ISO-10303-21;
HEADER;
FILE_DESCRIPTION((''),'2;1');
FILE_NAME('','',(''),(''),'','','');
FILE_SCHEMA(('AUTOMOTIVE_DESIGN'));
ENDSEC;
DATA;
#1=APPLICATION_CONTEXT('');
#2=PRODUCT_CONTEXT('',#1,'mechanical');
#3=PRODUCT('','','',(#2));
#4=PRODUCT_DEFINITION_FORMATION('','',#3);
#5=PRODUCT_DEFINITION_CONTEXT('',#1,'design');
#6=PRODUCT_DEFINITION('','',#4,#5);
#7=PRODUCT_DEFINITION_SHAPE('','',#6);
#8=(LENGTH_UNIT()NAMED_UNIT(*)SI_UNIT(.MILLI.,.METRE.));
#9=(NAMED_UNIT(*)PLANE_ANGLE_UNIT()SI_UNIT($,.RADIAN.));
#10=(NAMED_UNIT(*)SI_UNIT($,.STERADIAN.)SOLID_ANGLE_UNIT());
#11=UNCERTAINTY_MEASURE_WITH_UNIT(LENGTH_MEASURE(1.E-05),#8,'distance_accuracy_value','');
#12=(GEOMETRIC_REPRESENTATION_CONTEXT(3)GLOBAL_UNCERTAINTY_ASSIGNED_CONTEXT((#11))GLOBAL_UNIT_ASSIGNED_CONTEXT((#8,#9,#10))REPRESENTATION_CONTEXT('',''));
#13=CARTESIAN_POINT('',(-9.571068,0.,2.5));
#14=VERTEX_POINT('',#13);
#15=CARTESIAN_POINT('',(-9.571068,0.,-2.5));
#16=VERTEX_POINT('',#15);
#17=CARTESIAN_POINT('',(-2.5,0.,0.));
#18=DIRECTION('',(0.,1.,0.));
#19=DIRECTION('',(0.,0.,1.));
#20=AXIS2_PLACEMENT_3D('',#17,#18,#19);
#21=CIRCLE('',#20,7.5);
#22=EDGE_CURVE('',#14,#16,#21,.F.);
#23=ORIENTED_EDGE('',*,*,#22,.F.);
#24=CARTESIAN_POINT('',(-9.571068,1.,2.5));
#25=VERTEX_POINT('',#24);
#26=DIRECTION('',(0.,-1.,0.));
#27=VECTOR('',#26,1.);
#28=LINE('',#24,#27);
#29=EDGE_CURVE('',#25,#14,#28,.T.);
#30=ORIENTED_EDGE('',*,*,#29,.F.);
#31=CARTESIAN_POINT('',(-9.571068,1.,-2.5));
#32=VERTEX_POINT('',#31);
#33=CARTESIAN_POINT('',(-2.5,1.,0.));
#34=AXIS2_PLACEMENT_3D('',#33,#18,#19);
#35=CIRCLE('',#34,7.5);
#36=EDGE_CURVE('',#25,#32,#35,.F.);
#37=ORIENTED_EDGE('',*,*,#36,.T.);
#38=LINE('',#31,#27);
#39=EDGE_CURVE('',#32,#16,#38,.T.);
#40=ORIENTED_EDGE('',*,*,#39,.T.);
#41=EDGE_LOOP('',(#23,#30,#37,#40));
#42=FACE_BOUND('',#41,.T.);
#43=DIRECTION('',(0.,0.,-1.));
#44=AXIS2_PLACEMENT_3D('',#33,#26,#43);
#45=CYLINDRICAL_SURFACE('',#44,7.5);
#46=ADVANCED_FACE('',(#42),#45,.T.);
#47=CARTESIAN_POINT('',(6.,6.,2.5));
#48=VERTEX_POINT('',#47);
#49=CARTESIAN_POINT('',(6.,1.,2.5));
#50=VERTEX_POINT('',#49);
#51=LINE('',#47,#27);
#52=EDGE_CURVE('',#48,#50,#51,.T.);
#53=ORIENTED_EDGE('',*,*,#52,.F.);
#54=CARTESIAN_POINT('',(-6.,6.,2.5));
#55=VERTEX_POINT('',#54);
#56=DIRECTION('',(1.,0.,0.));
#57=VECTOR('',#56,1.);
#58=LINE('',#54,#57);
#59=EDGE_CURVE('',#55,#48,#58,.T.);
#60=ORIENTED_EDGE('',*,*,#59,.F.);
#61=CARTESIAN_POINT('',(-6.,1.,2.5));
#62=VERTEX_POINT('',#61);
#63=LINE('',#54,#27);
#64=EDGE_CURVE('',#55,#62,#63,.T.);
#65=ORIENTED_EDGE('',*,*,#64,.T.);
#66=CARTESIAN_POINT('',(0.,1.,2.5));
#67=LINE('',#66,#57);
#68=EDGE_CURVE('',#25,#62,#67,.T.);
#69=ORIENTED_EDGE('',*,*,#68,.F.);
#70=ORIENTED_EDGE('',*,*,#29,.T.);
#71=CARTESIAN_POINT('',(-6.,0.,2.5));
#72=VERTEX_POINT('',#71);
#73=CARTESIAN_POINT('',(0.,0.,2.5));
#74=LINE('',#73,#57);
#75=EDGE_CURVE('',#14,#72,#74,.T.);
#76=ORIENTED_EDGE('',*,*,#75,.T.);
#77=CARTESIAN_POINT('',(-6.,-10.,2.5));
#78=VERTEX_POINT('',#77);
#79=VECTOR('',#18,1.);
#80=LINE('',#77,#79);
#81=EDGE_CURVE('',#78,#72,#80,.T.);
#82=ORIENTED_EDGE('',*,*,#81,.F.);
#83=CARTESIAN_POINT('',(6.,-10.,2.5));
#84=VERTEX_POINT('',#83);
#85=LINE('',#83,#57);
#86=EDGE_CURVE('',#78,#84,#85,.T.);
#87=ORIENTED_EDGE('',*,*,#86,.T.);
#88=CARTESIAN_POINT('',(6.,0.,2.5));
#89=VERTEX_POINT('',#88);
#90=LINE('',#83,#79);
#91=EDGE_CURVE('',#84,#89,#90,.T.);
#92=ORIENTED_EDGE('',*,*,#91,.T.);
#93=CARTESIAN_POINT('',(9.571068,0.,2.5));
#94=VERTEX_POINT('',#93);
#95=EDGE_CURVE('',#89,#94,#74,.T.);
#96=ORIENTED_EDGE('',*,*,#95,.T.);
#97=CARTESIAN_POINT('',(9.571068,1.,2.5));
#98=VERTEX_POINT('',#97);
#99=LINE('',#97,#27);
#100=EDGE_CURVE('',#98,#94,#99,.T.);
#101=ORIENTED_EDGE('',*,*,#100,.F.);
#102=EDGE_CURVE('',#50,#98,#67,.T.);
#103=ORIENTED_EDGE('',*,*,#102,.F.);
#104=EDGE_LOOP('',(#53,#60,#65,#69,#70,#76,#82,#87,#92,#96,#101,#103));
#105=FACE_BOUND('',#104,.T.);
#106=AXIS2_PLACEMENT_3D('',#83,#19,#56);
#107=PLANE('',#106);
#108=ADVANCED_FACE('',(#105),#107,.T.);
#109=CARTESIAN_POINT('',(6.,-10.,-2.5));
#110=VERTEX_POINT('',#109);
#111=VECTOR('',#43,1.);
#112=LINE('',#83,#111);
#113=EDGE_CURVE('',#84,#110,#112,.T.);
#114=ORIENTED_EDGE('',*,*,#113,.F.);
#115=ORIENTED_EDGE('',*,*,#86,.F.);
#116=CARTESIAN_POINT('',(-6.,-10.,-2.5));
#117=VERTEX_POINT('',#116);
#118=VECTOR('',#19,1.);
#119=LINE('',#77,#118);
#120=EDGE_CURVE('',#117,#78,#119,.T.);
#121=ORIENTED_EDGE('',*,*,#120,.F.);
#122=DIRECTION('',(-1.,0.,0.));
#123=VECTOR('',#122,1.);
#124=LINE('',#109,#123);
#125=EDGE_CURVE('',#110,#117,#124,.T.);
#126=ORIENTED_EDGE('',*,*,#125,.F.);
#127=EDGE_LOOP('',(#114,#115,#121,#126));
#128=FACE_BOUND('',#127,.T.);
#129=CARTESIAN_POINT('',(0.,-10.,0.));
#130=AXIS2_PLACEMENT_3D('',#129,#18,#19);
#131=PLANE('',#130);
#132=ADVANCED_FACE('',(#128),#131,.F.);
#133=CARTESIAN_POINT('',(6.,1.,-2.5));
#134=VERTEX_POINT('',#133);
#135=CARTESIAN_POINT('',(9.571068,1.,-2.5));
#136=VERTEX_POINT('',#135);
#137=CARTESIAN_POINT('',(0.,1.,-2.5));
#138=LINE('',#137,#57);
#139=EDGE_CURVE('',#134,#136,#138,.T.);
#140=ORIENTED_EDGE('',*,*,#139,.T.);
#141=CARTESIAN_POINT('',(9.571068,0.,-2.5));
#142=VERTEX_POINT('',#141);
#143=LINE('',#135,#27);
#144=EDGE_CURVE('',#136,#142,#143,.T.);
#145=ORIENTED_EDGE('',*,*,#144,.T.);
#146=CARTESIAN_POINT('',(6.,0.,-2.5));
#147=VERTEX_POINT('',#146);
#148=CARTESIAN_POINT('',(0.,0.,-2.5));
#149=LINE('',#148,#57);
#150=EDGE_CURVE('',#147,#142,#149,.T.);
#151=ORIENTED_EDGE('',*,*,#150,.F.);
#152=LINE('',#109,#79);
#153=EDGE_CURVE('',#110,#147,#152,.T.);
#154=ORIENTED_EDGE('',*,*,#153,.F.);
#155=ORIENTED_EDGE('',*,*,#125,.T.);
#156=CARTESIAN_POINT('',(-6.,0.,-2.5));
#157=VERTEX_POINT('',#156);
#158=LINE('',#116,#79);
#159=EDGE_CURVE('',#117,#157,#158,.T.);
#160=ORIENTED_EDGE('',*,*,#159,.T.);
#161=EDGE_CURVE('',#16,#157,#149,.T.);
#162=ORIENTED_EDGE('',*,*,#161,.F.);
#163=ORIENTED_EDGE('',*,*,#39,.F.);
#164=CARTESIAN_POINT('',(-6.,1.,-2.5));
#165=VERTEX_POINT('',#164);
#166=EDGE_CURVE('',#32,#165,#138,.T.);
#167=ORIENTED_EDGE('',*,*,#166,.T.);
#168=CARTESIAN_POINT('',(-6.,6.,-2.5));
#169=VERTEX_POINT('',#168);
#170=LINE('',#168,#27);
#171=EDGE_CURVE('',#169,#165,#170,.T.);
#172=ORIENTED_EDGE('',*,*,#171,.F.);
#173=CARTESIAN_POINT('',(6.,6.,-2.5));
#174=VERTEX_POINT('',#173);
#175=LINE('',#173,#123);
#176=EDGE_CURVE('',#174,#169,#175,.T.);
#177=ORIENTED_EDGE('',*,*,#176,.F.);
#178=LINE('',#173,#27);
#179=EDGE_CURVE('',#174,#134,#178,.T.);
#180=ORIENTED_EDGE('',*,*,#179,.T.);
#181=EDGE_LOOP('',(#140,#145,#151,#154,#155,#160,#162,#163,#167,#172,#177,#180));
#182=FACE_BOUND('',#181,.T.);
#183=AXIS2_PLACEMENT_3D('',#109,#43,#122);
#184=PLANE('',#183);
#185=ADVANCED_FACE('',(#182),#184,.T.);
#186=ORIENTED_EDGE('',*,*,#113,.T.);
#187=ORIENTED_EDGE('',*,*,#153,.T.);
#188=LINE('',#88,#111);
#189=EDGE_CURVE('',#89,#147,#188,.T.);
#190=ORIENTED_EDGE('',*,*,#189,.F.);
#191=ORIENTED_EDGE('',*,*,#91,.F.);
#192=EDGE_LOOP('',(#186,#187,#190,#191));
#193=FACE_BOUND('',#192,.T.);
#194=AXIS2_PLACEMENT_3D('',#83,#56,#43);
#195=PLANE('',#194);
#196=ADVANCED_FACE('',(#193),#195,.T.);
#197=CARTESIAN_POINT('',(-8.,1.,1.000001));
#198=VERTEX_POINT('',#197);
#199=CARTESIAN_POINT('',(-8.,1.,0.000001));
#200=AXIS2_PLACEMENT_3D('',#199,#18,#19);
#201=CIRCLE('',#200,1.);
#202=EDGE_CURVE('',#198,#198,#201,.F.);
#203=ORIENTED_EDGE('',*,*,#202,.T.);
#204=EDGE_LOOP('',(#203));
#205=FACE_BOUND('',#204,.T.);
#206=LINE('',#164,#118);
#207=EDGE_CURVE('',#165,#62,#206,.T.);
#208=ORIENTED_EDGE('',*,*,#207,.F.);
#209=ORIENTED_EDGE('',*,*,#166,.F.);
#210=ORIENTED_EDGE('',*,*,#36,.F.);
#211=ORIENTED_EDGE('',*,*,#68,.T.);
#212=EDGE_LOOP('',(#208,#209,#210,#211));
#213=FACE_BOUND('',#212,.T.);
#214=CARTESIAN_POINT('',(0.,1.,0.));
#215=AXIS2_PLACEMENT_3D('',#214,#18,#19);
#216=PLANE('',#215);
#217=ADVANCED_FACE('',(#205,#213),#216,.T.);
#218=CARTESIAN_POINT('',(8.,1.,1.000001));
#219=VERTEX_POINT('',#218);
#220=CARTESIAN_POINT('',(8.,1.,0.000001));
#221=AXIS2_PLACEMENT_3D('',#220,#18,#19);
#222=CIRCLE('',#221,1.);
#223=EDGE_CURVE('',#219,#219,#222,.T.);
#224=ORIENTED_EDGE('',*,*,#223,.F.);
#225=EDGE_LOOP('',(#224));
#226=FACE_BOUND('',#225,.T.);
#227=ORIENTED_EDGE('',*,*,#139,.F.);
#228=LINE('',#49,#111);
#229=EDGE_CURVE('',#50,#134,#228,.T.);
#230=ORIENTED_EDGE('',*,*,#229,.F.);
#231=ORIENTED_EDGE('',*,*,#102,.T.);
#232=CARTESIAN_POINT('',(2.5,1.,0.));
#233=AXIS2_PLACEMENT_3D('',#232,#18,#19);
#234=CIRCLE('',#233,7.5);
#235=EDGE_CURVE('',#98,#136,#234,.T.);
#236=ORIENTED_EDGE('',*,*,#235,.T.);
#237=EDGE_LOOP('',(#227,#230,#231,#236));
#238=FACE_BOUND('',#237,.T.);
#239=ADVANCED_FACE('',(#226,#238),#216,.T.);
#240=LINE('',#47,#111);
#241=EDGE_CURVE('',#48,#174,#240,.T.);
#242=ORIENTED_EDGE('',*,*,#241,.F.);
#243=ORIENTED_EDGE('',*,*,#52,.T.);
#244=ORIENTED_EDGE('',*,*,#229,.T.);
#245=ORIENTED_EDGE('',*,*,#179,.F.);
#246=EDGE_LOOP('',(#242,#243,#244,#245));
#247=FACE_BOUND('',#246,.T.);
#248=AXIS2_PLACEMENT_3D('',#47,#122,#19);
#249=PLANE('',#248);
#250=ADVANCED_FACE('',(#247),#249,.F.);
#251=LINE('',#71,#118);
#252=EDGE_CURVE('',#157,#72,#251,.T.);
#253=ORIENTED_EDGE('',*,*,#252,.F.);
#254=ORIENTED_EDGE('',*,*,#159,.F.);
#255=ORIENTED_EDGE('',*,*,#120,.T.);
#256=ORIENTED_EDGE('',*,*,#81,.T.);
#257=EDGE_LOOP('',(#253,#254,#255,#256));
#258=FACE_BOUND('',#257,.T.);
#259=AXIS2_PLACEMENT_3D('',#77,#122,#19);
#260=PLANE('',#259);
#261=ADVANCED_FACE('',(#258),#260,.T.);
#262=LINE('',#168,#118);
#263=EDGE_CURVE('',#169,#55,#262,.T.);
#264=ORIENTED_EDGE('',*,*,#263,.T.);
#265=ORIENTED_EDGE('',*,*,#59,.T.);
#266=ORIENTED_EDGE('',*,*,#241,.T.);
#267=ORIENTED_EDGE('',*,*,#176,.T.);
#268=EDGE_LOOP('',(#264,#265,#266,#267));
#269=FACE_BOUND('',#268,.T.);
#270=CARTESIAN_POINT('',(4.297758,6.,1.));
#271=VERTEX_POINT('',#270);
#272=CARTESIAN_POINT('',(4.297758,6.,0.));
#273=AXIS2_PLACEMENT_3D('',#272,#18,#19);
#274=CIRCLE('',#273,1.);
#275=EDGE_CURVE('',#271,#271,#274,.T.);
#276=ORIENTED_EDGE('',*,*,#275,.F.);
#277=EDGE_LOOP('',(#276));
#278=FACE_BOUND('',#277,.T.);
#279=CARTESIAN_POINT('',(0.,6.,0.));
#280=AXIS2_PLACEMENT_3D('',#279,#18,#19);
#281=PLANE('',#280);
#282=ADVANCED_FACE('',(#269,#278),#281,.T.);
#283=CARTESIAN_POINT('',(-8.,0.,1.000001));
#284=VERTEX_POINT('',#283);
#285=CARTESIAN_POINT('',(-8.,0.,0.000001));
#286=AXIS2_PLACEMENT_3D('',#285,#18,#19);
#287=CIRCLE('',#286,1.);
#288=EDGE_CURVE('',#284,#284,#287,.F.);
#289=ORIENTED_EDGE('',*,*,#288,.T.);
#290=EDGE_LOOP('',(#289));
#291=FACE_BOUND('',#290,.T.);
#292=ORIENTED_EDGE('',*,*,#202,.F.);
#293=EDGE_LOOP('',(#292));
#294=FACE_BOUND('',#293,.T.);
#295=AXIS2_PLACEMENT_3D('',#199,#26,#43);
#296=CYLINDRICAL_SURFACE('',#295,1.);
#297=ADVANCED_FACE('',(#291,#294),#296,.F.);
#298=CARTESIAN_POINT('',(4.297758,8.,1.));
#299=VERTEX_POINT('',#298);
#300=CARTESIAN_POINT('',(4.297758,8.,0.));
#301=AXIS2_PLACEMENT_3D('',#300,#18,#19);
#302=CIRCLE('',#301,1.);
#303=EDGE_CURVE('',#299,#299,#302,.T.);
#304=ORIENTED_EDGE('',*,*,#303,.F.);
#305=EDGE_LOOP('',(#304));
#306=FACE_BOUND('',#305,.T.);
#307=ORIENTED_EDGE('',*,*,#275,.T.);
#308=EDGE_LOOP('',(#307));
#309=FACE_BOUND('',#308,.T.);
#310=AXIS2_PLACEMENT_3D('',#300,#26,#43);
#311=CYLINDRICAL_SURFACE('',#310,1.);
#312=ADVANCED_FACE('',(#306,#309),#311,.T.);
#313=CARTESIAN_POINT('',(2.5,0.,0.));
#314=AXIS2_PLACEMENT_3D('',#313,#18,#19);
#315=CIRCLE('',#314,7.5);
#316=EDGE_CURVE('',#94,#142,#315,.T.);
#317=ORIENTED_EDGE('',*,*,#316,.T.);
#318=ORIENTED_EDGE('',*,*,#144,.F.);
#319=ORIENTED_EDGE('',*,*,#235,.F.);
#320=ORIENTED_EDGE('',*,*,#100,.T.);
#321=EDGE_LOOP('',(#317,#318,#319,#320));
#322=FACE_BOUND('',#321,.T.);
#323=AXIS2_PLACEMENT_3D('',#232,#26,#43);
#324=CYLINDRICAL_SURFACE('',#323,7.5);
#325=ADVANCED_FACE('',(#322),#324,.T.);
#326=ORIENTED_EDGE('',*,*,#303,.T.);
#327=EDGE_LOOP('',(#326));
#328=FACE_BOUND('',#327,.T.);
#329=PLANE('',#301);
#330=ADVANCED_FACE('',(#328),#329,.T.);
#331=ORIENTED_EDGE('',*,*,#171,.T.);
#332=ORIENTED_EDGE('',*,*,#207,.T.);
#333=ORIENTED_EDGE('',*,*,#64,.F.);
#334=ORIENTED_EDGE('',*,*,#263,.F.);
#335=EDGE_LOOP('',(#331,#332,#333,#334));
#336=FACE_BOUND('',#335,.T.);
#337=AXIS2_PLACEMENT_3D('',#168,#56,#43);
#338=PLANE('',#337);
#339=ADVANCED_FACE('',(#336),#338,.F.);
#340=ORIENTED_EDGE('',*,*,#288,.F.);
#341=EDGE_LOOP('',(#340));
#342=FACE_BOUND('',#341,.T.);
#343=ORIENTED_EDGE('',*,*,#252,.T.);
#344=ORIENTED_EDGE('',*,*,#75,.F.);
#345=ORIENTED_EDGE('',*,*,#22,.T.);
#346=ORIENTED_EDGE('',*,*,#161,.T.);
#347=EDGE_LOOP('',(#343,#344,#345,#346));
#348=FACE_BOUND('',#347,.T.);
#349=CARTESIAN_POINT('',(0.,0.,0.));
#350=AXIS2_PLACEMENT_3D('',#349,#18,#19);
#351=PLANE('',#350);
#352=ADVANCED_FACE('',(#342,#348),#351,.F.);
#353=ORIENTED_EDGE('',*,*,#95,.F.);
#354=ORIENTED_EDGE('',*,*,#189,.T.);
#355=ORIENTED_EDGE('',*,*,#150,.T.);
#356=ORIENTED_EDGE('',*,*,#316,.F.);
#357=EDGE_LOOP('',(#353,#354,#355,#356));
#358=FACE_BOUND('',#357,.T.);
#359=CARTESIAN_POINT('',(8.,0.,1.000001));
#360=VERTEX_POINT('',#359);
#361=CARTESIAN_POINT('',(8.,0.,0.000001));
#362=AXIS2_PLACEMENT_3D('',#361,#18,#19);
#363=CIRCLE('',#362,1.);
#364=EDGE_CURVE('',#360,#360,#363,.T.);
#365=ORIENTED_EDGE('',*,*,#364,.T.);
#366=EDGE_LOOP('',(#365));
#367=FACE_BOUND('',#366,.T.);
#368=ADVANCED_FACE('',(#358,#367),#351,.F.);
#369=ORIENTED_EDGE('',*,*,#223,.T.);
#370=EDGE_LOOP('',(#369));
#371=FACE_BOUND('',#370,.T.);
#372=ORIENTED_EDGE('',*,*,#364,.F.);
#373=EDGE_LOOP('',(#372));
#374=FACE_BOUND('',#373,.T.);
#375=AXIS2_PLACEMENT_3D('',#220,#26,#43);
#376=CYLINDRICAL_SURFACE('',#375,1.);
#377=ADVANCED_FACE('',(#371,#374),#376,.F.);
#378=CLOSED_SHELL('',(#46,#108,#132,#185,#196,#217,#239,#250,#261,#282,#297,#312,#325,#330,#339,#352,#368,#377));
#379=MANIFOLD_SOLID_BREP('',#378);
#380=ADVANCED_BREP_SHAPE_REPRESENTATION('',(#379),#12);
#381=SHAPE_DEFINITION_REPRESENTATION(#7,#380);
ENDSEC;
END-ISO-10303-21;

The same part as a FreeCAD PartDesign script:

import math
import FreeCAD as App
import Part
import Sketcher
from FreeCAD import Vector

doc = App.newDocument("Part")
body = doc.addObject("PartDesign::Body", "Body")

# Sketch on XZ plane
sketch1 = body.newObject("Sketcher::SketchObject", "Sketch")
sketch1.AttachmentSupport = (doc.getObject("XZ_Plane"), [""])
sketch1.MapMode = "FlatFace"
sketch1.addGeometry(Part.LineSegment(Vector(-6, -2, 0), Vector(-6, 2, 0)), False)
sketch1.addGeometry(Part.LineSegment(Vector(-6, 2, 0), Vector(6, 2, 0)), False)
sketch1.addGeometry(Part.LineSegment(Vector(6, 2, 0), Vector(6, -2, 0)), False)
sketch1.addGeometry(Part.LineSegment(Vector(6, -2, 0), Vector(-6, -2, 0)), False)
sketch1.addConstraint(Sketcher.Constraint("Coincident", 0, 2, 1, 1))
sketch1.addConstraint(Sketcher.Constraint("Coincident", 1, 2, 2, 1))
sketch1.addConstraint(Sketcher.Constraint("Coincident", 2, 2, 3, 1))
sketch1.addConstraint(Sketcher.Constraint("Coincident", 3, 2, 0, 1))
sketch1.addConstraint(Sketcher.Constraint("Vertical", 0))
sketch1.addConstraint(Sketcher.Constraint("Horizontal", 1))
sketch1.addConstraint(Sketcher.Constraint("Vertical", 2))
sketch1.addConstraint(Sketcher.Constraint("Horizontal", 3))
sketch1.addConstraint(Sketcher.Constraint("Symmetric", 0, 2, 2, 2, -1, 1))
sketch1.addConstraint(Sketcher.Constraint("DistanceX", 1, 1, 1, 2, 12.0))
sketch1.addConstraint(Sketcher.Constraint("DistanceY", 0, 1, 0, 2, 5.0))
pad1 = body.newObject("PartDesign::Pad", "Pad")
pad1.Profile = sketch1
pad1.Length = 10

# Sketch on XZ plane
sketch2 = body.newObject("Sketcher::SketchObject", "Sketch001")
sketch2.AttachmentSupport = (doc.getObject("XZ_Plane"), [""])
sketch2.MapMode = "FlatFace"
sketch2.addGeometry(Part.ArcOfCircle(Part.Circle(Vector(2.5, 0, 0), Vector(0, 0, 1), 7.5), math.radians(-19), math.radians(19)), False)
sketch2.addGeometry(Part.LineSegment(Vector(9.6, -2.5, 0), Vector(-9.6, -2.5, 0)), False)
sketch2.addGeometry(Part.ArcOfCircle(Part.Circle(Vector(-2.5, 0, 0), Vector(0, 0, 1), 7.5), math.radians(161), math.radians(199)), False)
sketch2.addGeometry(Part.LineSegment(Vector(-9.6, 2.5, 0), Vector(9.6, 2.5, 0)), False)
sketch2.addGeometry(Part.Circle(Vector(-8, 0, 0), Vector(0, 0, 1), 1), False)
sketch2.addGeometry(Part.Circle(Vector(8, 0, 0), Vector(0, 0, 1), 1), False)
sketch2.addConstraint(Sketcher.Constraint("Coincident", 0, 1, 1, 1))
sketch2.addConstraint(Sketcher.Constraint("Coincident", 1, 2, 2, 2))
sketch2.addConstraint(Sketcher.Constraint("Coincident", 2, 1, 3, 1))
sketch2.addConstraint(Sketcher.Constraint("Coincident", 3, 2, 0, 2))
sketch2.addConstraint(Sketcher.Constraint("Horizontal", 1))
sketch2.addConstraint(Sketcher.Constraint("Horizontal", 3))
sketch2.addConstraint(Sketcher.Constraint("Equal", 0, 2))
sketch2.addConstraint(Sketcher.Constraint("Equal", 4, 5))
sketch2.addConstraint(Sketcher.Constraint("Symmetric", 0, 3, 2, 3, -1, 1))
sketch2.addConstraint(Sketcher.Constraint("Symmetric", 4, 3, 5, 3, -1, 1))
sketch2.addConstraint(Sketcher.Constraint("Symmetric", 1, 2, 2, 1, -1))
sketch2.addConstraint(Sketcher.Constraint("PointOnObject", 4, 3, -1))
sketch2.addConstraint(Sketcher.Constraint("Diameter", 4, 2.0))
sketch2.addConstraint(Sketcher.Constraint("Radius", 0, 7.5))
sketch2.addConstraint(Sketcher.Constraint("DistanceX", 4, 3, -1, 1, 8.0))
sketch2.addConstraint(Sketcher.Constraint("DistanceX", 2, 3, 0, 3, 5.0))
sketch2.addConstraint(Sketcher.Constraint("DistanceY", 1, 2, 2, 1, 5.0))
pad2 = body.newObject("PartDesign::Pad", "Pad001")
pad2.Profile = sketch2
pad2.Length = 1
pad2.Reversed = True

# Sketch on XZ plane
sketch3 = body.newObject("Sketcher::SketchObject", "Sketch002")
sketch3.AttachmentSupport = (doc.getObject("XZ_Plane"), [""])
sketch3.MapMode = "FlatFace"
sketch3.AttachmentOffset = App.Placement(Vector(0, 0, -1), App.Rotation())
sketch3.addGeometry(Part.LineSegment(Vector(-6, -2, 0), Vector(-6, 2, 0)), False)
sketch3.addGeometry(Part.LineSegment(Vector(-6, 2, 0), Vector(6, 2, 0)), False)
sketch3.addGeometry(Part.LineSegment(Vector(6, 2, 0), Vector(6, -2, 0)), False)
sketch3.addGeometry(Part.LineSegment(Vector(6, -2, 0), Vector(-6, -2, 0)), False)
sketch3.addConstraint(Sketcher.Constraint("Coincident", 0, 2, 1, 1))
sketch3.addConstraint(Sketcher.Constraint("Coincident", 1, 2, 2, 1))
sketch3.addConstraint(Sketcher.Constraint("Coincident", 2, 2, 3, 1))
sketch3.addConstraint(Sketcher.Constraint("Coincident", 3, 2, 0, 1))
sketch3.addConstraint(Sketcher.Constraint("Vertical", 0))
sketch3.addConstraint(Sketcher.Constraint("Horizontal", 1))
sketch3.addConstraint(Sketcher.Constraint("Vertical", 2))
sketch3.addConstraint(Sketcher.Constraint("Horizontal", 3))
sketch3.addConstraint(Sketcher.Constraint("Symmetric", 0, 2, 2, 2, -1, 1))
sketch3.addConstraint(Sketcher.Constraint("DistanceX", 1, 1, 1, 2, 12.0))
sketch3.addConstraint(Sketcher.Constraint("DistanceY", 0, 1, 0, 2, 5.0))
pad3 = body.newObject("PartDesign::Pad", "Pad002")
pad3.Profile = sketch3
pad3.Length = 5
pad3.Reversed = True

# Sketch on XZ plane
sketch4 = body.newObject("Sketcher::SketchObject", "Sketch003")
sketch4.AttachmentSupport = (doc.getObject("XZ_Plane"), [""])
sketch4.MapMode = "FlatFace"
sketch4.AttachmentOffset = App.Placement(Vector(0, 0, -6), App.Rotation())
sketch4.addGeometry(Part.Circle(Vector(4.3, 0, 0), Vector(0, 0, 1), 1), False)
sketch4.addConstraint(Sketcher.Constraint("PointOnObject", 0, 3, -1))
sketch4.addConstraint(Sketcher.Constraint("Diameter", 0, 2.0))
sketch4.addConstraint(Sketcher.Constraint("DistanceX", -1, 1, 0, 3, 4.297758))
pad4 = body.newObject("PartDesign::Pad", "Pad003")
pad4.Profile = sketch4
pad4.Length = 2
pad4.Reversed = True

doc.recompute()
